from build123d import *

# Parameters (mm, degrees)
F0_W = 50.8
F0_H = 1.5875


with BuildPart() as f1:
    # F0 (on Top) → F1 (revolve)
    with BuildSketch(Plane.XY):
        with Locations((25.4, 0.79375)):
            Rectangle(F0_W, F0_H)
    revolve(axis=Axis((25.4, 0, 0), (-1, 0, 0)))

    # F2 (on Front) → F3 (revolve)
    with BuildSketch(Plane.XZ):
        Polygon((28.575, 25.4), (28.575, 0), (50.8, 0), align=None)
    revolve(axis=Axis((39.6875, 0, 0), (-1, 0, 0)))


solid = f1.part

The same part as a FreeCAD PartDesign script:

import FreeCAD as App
import Part
import Sketcher
Q = App.Units.Quantity

doc = App.newDocument("Part")
body = doc.addObject("PartDesign::Body", "Body")

sketch1 = doc.addObject("Sketcher::SketchObject", "Sketch")
body.addObject(sketch1)
sketch1.AttachmentSupport = (doc.XY_Plane, [""])
sketch1.MapMode = "FlatFace"
sketch1.addGeometry(Part.LineSegment(App.Vector(0, 1.6, 0), App.Vector(0, 0, 0)), False)
sketch1.addGeometry(Part.LineSegment(App.Vector(0, 0, 0), App.Vector(50.8, 0, 0)), False)
sketch1.addGeometry(Part.LineSegment(App.Vector(50.8, 0, 0), App.Vector(50.8, 1.6, 0)), False)
sketch1.addGeometry(Part.LineSegment(App.Vector(50.8, 1.6, 0), App.Vector(0, 1.6, 0)), False)
sketch1.addConstraint(Sketcher.Constraint("Coincident", 0, 2, 1, 1))
sketch1.addConstraint(Sketcher.Constraint("Coincident", 1, 2, 2, 1))
sketch1.addConstraint(Sketcher.Constraint("Coincident", 2, 2, 3, 1))
sketch1.addConstraint(Sketcher.Constraint("Coincident", 3, 2, 0, 1))
sketch1.addConstraint(Sketcher.Constraint("Vertical", 0))
sketch1.addConstraint(Sketcher.Constraint("Horizontal", 1))
sketch1.addConstraint(Sketcher.Constraint("Vertical", 2))
sketch1.addConstraint(Sketcher.Constraint("Horizontal", 3))
sketch1.addConstraint(Sketcher.Constraint("Coincident", 0, 2, -1, 1))
sketch1.addConstraint(Sketcher.Constraint("DistanceX", 1, 1, 1, 2, Q("2 in")))
sketch1.addConstraint(Sketcher.Constraint("DistanceY", 0, 2, 0, 1, Q("0.0625 in")))
revolution = doc.addObject("PartDesign::Revolution", "Revolution")
body.addObject(revolution)
revolution.Profile = sketch1
revolution.ReferenceAxis = (sketch1, ["H_Axis"])
revolution.Angle = 360

sketch2 = doc.addObject("Sketcher::SketchObject", "Sketch001")
body.addObject(sketch2)
sketch2.AttachmentSupport = (doc.XZ_Plane, [""])
sketch2.MapMode = "FlatFace"
sketch2.addGeometry(Part.LineSegment(App.Vector(29, 25, 0), App.Vector(29, 0, 0)), False)
sketch2.addGeometry(Part.LineSegment(App.Vector(29, 0, 0), App.Vector(51, 0, 0)), False)
sketch2.addGeometry(Part.LineSegment(App.Vector(51, 0, 0), App.Vector(29, 25, 0)), False)
sketch2.addConstraint(Sketcher.Constraint("Coincident", 0, 2, 1, 1))
sketch2.addConstraint(Sketcher.Constraint("Coincident", 1, 2, 2, 1))
sketch2.addConstraint(Sketcher.Constraint("Coincident", 2, 2, 0, 1))
sketch2.addConstraint(Sketcher.Constraint("Vertical", 0))
sketch2.addConstraint(Sketcher.Constraint("Horizontal", 1))
sketch2.addConstraint(Sketcher.Constraint("PointOnObject", 0, 2, -1))
sketch2.addConstraint(Sketcher.Constraint("DistanceY", 0, 2, 0, 1, Q("1 in")))
sketch2.addConstraint(Sketcher.Constraint("DistanceX", -1, 1, 1, 2, Q("2 in")))
sketch2.addConstraint(Sketcher.Constraint("DistanceX", 1, 1, 1, 2, Q("0.875 in")))
revolution2 = doc.addObject("PartDesign::Revolution", "Revolution001")
body.addObject(revolution2)
revolution2.Profile = sketch2
revolution2.ReferenceAxis = (sketch2, ["H_Axis"])
revolution2.Angle = 360

doc.recompute()
